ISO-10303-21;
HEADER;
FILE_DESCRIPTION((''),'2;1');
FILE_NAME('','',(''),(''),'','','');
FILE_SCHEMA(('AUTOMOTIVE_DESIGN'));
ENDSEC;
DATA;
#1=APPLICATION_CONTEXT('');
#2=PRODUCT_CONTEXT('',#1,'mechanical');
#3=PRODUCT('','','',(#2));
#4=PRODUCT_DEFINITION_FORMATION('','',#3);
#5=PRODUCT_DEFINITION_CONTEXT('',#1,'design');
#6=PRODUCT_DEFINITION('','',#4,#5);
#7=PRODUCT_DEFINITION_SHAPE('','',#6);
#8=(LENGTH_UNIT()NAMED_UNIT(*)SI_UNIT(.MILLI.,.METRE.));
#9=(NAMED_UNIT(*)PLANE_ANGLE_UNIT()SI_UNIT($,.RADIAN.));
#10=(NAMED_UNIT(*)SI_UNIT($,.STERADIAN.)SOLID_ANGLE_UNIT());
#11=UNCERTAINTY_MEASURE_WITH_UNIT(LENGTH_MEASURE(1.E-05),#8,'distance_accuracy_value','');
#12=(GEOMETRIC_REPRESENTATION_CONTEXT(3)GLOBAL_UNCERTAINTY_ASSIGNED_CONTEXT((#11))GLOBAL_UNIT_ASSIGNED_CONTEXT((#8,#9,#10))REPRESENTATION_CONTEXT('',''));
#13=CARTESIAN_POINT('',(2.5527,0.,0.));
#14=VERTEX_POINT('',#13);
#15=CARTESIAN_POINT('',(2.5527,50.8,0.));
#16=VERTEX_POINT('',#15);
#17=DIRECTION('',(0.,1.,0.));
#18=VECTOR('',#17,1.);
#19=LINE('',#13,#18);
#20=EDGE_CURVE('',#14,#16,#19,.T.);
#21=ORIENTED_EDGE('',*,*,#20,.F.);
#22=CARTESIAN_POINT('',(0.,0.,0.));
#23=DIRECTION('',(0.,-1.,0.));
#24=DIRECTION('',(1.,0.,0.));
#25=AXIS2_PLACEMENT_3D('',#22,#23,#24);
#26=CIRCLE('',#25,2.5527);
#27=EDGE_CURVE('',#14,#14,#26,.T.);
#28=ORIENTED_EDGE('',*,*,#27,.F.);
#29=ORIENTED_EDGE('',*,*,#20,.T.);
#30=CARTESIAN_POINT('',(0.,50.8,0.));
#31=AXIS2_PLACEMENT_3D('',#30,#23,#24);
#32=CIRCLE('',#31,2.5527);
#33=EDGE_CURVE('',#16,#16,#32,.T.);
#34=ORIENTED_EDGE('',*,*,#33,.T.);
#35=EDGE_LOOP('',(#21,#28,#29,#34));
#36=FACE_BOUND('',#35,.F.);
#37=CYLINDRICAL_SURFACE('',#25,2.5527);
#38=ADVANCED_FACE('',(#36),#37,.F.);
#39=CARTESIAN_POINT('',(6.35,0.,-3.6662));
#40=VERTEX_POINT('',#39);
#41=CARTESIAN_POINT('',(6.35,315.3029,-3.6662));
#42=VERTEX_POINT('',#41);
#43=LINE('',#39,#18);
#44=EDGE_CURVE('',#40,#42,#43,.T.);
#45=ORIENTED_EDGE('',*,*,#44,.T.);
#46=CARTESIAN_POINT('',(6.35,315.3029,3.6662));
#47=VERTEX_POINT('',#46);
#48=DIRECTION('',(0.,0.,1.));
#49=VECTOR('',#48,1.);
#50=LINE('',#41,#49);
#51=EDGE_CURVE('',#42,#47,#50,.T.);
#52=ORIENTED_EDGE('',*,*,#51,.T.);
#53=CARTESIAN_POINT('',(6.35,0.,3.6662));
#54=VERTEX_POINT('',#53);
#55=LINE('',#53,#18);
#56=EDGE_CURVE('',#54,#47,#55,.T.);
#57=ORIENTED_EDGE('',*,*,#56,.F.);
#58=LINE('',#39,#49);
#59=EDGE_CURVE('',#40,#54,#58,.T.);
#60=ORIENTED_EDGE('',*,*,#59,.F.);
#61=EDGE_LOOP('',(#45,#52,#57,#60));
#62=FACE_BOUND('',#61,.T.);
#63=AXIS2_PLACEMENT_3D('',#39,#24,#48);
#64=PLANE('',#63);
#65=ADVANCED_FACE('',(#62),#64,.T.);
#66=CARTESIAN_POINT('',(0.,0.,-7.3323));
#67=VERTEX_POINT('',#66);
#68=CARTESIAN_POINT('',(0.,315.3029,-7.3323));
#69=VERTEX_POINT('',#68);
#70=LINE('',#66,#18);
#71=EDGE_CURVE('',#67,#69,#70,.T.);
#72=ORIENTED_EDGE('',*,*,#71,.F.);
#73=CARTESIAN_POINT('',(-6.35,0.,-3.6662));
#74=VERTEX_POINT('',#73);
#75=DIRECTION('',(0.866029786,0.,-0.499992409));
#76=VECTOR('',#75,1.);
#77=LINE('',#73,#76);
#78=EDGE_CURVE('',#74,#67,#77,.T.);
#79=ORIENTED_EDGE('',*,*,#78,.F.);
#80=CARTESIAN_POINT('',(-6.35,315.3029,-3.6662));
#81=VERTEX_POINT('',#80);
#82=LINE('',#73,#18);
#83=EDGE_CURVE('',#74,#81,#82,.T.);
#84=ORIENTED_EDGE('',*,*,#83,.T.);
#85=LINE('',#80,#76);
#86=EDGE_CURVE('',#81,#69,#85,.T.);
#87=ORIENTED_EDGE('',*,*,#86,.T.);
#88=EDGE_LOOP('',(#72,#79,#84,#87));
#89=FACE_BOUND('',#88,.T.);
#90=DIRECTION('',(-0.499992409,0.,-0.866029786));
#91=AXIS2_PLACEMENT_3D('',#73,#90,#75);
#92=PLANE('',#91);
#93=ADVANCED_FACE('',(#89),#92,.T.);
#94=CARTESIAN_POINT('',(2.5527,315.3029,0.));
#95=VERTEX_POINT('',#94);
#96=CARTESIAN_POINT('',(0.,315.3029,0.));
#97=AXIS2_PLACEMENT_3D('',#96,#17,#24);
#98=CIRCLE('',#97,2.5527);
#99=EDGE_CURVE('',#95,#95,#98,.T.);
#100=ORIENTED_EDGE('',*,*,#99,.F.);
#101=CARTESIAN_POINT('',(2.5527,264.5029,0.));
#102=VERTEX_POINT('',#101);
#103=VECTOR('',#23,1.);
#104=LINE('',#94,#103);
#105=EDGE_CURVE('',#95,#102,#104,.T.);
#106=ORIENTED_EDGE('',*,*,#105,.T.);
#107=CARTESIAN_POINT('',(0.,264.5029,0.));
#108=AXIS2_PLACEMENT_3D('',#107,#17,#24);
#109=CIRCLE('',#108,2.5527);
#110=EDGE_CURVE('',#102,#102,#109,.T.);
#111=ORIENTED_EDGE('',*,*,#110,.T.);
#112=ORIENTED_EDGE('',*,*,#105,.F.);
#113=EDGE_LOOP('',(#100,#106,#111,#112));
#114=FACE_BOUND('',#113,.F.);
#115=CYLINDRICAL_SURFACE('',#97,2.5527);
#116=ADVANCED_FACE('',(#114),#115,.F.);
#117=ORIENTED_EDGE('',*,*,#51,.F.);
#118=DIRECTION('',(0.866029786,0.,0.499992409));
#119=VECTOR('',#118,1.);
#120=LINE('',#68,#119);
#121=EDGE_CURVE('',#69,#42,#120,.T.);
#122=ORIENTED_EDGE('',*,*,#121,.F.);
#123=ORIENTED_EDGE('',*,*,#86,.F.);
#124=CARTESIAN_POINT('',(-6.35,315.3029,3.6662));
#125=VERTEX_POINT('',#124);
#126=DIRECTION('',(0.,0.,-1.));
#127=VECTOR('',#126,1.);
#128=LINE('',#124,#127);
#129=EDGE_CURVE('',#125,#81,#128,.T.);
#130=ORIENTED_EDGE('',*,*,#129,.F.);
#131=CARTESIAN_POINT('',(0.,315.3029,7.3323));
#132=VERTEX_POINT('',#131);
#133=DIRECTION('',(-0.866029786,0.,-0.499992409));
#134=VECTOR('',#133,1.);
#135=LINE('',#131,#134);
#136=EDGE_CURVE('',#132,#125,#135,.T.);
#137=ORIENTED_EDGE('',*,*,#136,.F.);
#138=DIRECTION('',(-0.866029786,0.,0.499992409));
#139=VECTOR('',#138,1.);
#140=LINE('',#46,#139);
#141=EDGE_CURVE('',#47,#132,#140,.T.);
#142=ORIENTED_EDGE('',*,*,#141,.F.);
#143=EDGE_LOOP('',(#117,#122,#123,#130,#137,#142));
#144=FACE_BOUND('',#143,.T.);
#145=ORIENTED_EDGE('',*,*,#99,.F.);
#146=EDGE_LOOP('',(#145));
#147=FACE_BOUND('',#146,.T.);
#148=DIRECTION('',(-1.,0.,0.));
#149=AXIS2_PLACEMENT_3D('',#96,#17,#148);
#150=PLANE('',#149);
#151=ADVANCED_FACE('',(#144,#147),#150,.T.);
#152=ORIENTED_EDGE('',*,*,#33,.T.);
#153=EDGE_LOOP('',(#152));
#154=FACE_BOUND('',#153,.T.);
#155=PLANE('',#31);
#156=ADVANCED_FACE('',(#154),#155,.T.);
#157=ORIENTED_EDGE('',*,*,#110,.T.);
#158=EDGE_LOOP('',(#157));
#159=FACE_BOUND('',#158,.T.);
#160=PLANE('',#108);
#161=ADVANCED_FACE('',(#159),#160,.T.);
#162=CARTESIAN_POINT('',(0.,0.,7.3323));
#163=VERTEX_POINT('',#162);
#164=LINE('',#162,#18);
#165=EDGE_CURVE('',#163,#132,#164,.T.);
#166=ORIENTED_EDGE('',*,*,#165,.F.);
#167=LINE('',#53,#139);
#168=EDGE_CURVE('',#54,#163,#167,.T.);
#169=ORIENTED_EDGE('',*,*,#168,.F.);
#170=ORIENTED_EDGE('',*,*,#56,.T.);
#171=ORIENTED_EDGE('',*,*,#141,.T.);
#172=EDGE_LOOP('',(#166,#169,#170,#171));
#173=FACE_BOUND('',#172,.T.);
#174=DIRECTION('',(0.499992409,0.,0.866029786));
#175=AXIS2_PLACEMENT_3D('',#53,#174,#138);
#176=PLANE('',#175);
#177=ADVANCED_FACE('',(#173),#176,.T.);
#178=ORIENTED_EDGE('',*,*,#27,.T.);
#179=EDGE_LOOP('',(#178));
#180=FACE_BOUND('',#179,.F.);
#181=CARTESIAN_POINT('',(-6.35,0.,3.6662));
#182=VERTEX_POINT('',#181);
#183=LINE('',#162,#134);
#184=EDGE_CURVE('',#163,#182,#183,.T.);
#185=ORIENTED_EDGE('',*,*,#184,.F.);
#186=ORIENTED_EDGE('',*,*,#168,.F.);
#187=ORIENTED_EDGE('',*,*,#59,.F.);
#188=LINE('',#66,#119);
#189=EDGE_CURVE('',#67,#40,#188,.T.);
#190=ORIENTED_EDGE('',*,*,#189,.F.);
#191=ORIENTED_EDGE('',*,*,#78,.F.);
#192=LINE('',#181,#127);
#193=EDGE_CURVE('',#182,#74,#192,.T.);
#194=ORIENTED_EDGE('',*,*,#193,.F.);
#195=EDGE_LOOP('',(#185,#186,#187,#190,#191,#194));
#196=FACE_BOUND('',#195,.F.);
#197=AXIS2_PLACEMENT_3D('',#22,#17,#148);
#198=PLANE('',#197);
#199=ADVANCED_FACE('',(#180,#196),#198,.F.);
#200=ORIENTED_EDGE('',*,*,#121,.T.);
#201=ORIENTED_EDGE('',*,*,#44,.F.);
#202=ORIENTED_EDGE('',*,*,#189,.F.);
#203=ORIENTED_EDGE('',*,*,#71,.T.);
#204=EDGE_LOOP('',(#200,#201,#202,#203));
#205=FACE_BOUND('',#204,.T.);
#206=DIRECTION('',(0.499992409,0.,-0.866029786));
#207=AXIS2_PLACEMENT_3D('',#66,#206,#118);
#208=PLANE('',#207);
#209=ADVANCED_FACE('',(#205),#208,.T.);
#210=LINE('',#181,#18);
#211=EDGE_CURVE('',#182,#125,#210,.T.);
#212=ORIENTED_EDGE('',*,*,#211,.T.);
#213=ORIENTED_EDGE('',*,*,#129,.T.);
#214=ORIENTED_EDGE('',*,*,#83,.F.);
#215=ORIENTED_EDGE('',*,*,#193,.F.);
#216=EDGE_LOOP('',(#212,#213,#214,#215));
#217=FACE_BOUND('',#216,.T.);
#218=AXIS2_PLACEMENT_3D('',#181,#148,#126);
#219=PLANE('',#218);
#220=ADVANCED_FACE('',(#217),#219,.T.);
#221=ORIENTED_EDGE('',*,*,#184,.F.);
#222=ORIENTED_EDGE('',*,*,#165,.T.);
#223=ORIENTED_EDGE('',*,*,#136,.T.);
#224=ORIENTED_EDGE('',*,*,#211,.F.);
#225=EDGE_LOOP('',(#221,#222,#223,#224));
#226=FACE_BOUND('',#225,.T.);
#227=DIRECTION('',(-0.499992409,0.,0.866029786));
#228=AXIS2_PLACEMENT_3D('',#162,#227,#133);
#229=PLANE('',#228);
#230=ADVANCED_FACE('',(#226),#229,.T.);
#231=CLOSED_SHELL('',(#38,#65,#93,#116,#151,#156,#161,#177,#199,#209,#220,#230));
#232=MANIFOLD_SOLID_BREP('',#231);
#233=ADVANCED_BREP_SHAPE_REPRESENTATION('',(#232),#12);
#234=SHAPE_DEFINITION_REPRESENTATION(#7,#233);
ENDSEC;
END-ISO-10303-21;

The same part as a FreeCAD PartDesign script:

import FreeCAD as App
import Part
import Sketcher
from FreeCAD import Vector
Q = App.Units.Quantity


def add_polygon(sketch, points):
    """Adds a closed chain of lines whose ends are joined by coincident constraints."""
    first, n = sketch.GeometryCount, len(points)
    for a, b in zip(points, points[1:] + points[:1]):
        sketch.addGeometry(Part.LineSegment(App.Vector(*a, 0), App.Vector(*b, 0)), False)
    for i in range(n):
        sketch.addConstraint(Sketcher.Constraint("Coincident", first + i, 2, first + (i + 1) % n, 1))

doc = App.newDocument("Part")
params = doc.addObject("Spreadsheet::Sheet", "Params")
for row, (alias, value) in enumerate([
    ("pad1_length", "12.4135 in"),
    ("sketch2_diameter", "0.201 in"),
    ("pocket1_length", "2 in"),
    ("sketch3_diameter", "0.201 in"),
    ("pocket2_length", "2 in"),
], start=1):
    params.set(f"A{row}", alias)
    params.set(f"B{row}", "=" + value)
    params.setAlias(f"B{row}", alias)

body = doc.addObject("PartDesign::Body", "Body")

sketch1 = doc.addObject("Sketcher::SketchObject", "Sketch")
body.addObject(sketch1)
sketch1.AttachmentSupport = (doc.XZ_Plane, [""])
sketch1.MapMode = "FlatFace"
add_polygon(sketch1, [(-6, -4), (-6, 4), (0, 7), (6, 4), (6, -4), (0, -7)])
sketch1.addConstraint([
    Sketcher.Constraint("Vertical", 0),
    Sketcher.Constraint("Vertical", 3),
    Sketcher.Constraint("Symmetric", 0, 2, 3, 2, -1, 1),
    Sketcher.Constraint("Symmetric", 1, 2, 4, 2, -1, 1),
    Sketcher.Constraint("PointOnObject", 1, 2, -2),
    Sketcher.Constraint("Parallel", 2, 5),
    Sketcher.Constraint("Horizontal", 0, 2, 2, 2),
    Sketcher.Constraint("DistanceX", 0, 2, 2, 2, Q("0.5 in")),
    Sketcher.Constraint("Angle", 1, Q("29.9995 deg")),
    Sketcher.Constraint("DistanceY", 3, 2, 1, 2, Q("0.433 in")),
])
pad1 = doc.addObject("PartDesign::Pad", "Pad")
body.addObject(pad1)
pad1.Profile = sketch1
pad1.setExpression("Length", "Params.pad1_length")
pad1.Reversed = True

sketch2 = doc.addObject("Sketcher::SketchObject", "Sketch001")
body.addObject(sketch2)
sketch2.AttachmentSupport = (doc.XZ_Plane, [""])
sketch2.MapMode = "FlatFace"
sketch2.AttachmentOffset = App.Placement(Vector(0, 0, -12.4135 * 25.4), App.Rotation())
sketch2.addGeometry(Part.Circle(Vector(0, 0, 0), Vector(0, 0, 1), 2.6), False)
sketch2.addConstraint([
    Sketcher.Constraint("Coincident", 0, 3, -1, 1),
    Sketcher.Constraint("Diameter", 0, Q("0.201 in")),
])
sketch2.setExpression("Constraints[1]", "Params.sketch2_diameter")
pocket1 = doc.addObject("PartDesign::Pocket", "Pocket")
body.addObject(pocket1)
pocket1.Profile = sketch2
pocket1.setExpression("Length", "Params.pocket1_length")
pocket1.Reversed = True

sketch3 = doc.addObject("Sketcher::SketchObject", "Sketch002")
body.addObject(sketch3)
sketch3.AttachmentSupport = (doc.XZ_Plane, [""])
sketch3.MapMode = "FlatFace"
sketch3.addGeometry(Part.Circle(Vector(0, 0, 0), Vector(0, 0, 1), 2.6), False)
sketch3.addConstraint([
    Sketcher.Constraint("Coincident", 0, 3, -1, 1),
    Sketcher.Constraint("Diameter", 0, Q("0.201 in")),
])
sketch3.setExpression("Constraints[1]", "Params.sketch3_diameter")
pocket2 = doc.addObject("PartDesign::Pocket", "Pocket001")
body.addObject(pocket2)
pocket2.Profile = sketch3
pocket2.setExpression("Length", "Params.pocket2_length")

doc.recompute()
